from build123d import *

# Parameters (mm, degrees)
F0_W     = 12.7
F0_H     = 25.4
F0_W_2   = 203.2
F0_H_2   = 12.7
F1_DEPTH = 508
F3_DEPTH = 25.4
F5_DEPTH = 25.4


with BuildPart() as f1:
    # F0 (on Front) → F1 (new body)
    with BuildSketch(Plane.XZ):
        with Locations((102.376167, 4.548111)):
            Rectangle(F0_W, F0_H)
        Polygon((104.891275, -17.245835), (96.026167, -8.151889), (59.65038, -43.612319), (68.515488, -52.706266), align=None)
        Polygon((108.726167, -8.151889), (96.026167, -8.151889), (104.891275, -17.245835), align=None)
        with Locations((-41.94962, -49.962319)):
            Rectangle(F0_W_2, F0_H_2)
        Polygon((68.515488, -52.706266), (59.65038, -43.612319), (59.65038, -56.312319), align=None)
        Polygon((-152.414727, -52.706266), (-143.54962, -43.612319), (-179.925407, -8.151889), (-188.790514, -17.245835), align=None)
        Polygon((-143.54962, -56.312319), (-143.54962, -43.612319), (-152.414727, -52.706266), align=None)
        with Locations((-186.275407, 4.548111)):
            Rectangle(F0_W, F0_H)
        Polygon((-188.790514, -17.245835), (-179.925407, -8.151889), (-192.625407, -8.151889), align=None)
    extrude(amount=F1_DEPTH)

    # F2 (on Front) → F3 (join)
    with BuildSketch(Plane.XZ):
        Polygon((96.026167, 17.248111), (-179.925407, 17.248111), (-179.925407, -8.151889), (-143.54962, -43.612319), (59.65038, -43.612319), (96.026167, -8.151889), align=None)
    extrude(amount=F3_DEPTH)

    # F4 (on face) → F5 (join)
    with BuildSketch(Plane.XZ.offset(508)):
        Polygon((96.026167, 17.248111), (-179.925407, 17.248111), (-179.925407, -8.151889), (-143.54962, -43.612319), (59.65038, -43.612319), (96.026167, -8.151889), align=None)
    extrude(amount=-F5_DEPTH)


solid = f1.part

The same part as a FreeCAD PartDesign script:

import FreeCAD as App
import Part
import Sketcher
from FreeCAD import Vector
Q = App.Units.Quantity


def add_polygon(sketch, points):
    """Adds a closed chain of lines whose ends are joined by coincident constraints."""
    first, n = sketch.GeometryCount, len(points)
    for a, b in zip(points, points[1:] + points[:1]):
        sketch.addGeometry(Part.LineSegment(App.Vector(*a, 0), App.Vector(*b, 0)), False)
    for i in range(n):
        sketch.addConstraint(Sketcher.Constraint("Coincident", first + i, 2, first + (i + 1) % n, 1))

doc = App.newDocument("Part")
body = doc.addObject("PartDesign::Body", "Body")

sketch1 = doc.addObject("Sketcher::SketchObject", "Sketch")
body.addObject(sketch1)
sketch1.AttachmentSupport = (doc.XZ_Plane, [""])
sketch1.MapMode = "FlatFace"
add_polygon(sketch1, [(96, 17), (96, -8), (60, -44), (-144, -44), (-180, -8), (-180, 17), (-193, 17), (-193, -8), (-189, -17), (-152, -53), (-144, -56), (60, -56), (69, -53), (105, -17), (109, -8), (109, 17)])
sketch1.addConstraint([
    Sketcher.Constraint("Vertical", 0),
    Sketcher.Constraint("Horizontal", 2),
    Sketcher.Constraint("Vertical", 4),
    Sketcher.Constraint("Horizontal", 5),
    Sketcher.Constraint("Vertical", 6),
    Sketcher.Constraint("Horizontal", 10),
    Sketcher.Constraint("Vertical", 14),
    Sketcher.Constraint("Horizontal", 15),
    Sketcher.Constraint("Parallel", 3, 8),
    Sketcher.Constraint("Parallel", 1, 12),
    Sketcher.Constraint("Horizontal", 0, 2, 3, 2),
    Sketcher.Constraint("Horizontal", 3, 2, 6, 2),
    Sketcher.Constraint("Horizontal", 8, 2, 11, 2),
    Sketcher.Constraint("Horizontal", 7, 2, 12, 2),
    Sketcher.Constraint("Horizontal", 6, 2, 13, 2),
    Sketcher.Constraint("Horizontal", 5, 2, 14, 2),
    Sketcher.Constraint("Vertical", 2, 2, 9, 2),
    Sketcher.Constraint("Vertical", 1, 2, 10, 2),
    Sketcher.Constraint("Equal", 5, 15),
    Sketcher.Constraint("Equal", 1, 3),
    Sketcher.Constraint("Equal", 3, 8),
    Sketcher.Constraint("Equal", 9, 11),
    Sketcher.Constraint("DistanceX", 2, 2, 2, 1, Q("8 in")),
    Sketcher.Constraint("DistanceY", 0, 2, 0, 1, Q("1 in")),
    Sketcher.Constraint("Distance", 1, Q("2 in")),
    Sketcher.Constraint("DistanceX", 5, 2, 5, 1, Q("0.5 in")),
    Sketcher.Constraint("DistanceY", 9, 2, 2, 2, Q("0.5 in")),
    Sketcher.Constraint("Distance", 7, 9.869461),
    Sketcher.Constraint("Distance", 9, 9.570462),
    Sketcher.Constraint("DistanceY", 0, 2, -1, 1, 8.151889),
    Sketcher.Constraint("DistanceX", -1, 1, 1, 2, 59.65038),
    Sketcher.Constraint("DistanceY", 1, 2, -1, 1, 43.612319),
])
pad1 = doc.addObject("PartDesign::Pad", "Pad")
body.addObject(pad1)
pad1.Profile = sketch1
pad1.Length = Q("20 in")

sketch2 = doc.addObject("Sketcher::SketchObject", "Sketch001")
body.addObject(sketch2)
sketch2.AttachmentSupport = (doc.XZ_Plane, [""])
sketch2.MapMode = "FlatFace"
add_polygon(sketch2, [(96, 17), (-180, 17), (-180, -8), (-144, -44), (60, -44), (96, -8)])
sketch2.addConstraint([
    Sketcher.Constraint("Horizontal", 0),
    Sketcher.Constraint("Vertical", 1),
    Sketcher.Constraint("Horizontal", 3),
    Sketcher.Constraint("Vertical", 5),
    Sketcher.Constraint("Horizontal", 1, 2, 4, 2),
    Sketcher.Constraint("Equal", 2, 4),
    Sketcher.Constraint("DistanceX", 3, 1, 3, 2, Q("8 in")),
    Sketcher.Constraint("DistanceY", 1, 2, 1, 1, Q("1 in")),
    Sketcher.Constraint("Distance", 2, Q("2 in")),
    Sketcher.Constraint("DistanceX", 0, 2, 0, 1, 275.951574),
    Sketcher.Constraint("DistanceY", -1, 1, 0, 2, 17.248111),
    Sketcher.Constraint("DistanceX", 2, 2, -1, 1, 143.54962),
])
pad2 = doc.addObject("PartDesign::Pad", "Pad001")
body.addObject(pad2)
pad2.Profile = sketch2
pad2.Length = Q("1 in")

sketch3 = doc.addObject("Sketcher::SketchObject", "Sketch002")
body.addObject(sketch3)
sketch3.AttachmentSupport = (doc.XZ_Plane, [""])
sketch3.MapMode = "FlatFace"
sketch3.AttachmentOffset = App.Placement(Vector(0, 0, 20 * 25.4), App.Rotation())
add_polygon(sketch3, [(96, 17), (-180, 17), (-180, -8), (-144, -44), (60, -44), (96, -8)])
sketch3.addConstraint([
    Sketcher.Constraint("Horizontal", 0),
    Sketcher.Constraint("Vertical", 1),
    Sketcher.Constraint("Horizontal", 3),
    Sketcher.Constraint("Vertical", 5),
    Sketcher.Constraint("Horizontal", 1, 2, 4, 2),
    Sketcher.Constraint("Equal", 2, 4),
    Sketcher.Constraint("DistanceX", 3, 1, 3, 2, Q("8 in")),
    Sketcher.Constraint("DistanceY", 1, 2, 1, 1, Q("1 in")),
    Sketcher.Constraint("Distance", 2, Q("2 in")),
    Sketcher.Constraint("DistanceX", 0, 2, 0, 1, 275.951574),
    Sketcher.Constraint("DistanceY", -1, 1, 0, 2, 17.248111),
    Sketcher.Constraint("DistanceX", 2, 2, -1, 1, 143.54962),
])
pad3 = doc.addObject("PartDesign::Pad", "Pad002")
body.addObject(pad3)
pad3.Profile = sketch3
pad3.Length = Q("1 in")
pad3.Reversed = True

doc.recompute()
